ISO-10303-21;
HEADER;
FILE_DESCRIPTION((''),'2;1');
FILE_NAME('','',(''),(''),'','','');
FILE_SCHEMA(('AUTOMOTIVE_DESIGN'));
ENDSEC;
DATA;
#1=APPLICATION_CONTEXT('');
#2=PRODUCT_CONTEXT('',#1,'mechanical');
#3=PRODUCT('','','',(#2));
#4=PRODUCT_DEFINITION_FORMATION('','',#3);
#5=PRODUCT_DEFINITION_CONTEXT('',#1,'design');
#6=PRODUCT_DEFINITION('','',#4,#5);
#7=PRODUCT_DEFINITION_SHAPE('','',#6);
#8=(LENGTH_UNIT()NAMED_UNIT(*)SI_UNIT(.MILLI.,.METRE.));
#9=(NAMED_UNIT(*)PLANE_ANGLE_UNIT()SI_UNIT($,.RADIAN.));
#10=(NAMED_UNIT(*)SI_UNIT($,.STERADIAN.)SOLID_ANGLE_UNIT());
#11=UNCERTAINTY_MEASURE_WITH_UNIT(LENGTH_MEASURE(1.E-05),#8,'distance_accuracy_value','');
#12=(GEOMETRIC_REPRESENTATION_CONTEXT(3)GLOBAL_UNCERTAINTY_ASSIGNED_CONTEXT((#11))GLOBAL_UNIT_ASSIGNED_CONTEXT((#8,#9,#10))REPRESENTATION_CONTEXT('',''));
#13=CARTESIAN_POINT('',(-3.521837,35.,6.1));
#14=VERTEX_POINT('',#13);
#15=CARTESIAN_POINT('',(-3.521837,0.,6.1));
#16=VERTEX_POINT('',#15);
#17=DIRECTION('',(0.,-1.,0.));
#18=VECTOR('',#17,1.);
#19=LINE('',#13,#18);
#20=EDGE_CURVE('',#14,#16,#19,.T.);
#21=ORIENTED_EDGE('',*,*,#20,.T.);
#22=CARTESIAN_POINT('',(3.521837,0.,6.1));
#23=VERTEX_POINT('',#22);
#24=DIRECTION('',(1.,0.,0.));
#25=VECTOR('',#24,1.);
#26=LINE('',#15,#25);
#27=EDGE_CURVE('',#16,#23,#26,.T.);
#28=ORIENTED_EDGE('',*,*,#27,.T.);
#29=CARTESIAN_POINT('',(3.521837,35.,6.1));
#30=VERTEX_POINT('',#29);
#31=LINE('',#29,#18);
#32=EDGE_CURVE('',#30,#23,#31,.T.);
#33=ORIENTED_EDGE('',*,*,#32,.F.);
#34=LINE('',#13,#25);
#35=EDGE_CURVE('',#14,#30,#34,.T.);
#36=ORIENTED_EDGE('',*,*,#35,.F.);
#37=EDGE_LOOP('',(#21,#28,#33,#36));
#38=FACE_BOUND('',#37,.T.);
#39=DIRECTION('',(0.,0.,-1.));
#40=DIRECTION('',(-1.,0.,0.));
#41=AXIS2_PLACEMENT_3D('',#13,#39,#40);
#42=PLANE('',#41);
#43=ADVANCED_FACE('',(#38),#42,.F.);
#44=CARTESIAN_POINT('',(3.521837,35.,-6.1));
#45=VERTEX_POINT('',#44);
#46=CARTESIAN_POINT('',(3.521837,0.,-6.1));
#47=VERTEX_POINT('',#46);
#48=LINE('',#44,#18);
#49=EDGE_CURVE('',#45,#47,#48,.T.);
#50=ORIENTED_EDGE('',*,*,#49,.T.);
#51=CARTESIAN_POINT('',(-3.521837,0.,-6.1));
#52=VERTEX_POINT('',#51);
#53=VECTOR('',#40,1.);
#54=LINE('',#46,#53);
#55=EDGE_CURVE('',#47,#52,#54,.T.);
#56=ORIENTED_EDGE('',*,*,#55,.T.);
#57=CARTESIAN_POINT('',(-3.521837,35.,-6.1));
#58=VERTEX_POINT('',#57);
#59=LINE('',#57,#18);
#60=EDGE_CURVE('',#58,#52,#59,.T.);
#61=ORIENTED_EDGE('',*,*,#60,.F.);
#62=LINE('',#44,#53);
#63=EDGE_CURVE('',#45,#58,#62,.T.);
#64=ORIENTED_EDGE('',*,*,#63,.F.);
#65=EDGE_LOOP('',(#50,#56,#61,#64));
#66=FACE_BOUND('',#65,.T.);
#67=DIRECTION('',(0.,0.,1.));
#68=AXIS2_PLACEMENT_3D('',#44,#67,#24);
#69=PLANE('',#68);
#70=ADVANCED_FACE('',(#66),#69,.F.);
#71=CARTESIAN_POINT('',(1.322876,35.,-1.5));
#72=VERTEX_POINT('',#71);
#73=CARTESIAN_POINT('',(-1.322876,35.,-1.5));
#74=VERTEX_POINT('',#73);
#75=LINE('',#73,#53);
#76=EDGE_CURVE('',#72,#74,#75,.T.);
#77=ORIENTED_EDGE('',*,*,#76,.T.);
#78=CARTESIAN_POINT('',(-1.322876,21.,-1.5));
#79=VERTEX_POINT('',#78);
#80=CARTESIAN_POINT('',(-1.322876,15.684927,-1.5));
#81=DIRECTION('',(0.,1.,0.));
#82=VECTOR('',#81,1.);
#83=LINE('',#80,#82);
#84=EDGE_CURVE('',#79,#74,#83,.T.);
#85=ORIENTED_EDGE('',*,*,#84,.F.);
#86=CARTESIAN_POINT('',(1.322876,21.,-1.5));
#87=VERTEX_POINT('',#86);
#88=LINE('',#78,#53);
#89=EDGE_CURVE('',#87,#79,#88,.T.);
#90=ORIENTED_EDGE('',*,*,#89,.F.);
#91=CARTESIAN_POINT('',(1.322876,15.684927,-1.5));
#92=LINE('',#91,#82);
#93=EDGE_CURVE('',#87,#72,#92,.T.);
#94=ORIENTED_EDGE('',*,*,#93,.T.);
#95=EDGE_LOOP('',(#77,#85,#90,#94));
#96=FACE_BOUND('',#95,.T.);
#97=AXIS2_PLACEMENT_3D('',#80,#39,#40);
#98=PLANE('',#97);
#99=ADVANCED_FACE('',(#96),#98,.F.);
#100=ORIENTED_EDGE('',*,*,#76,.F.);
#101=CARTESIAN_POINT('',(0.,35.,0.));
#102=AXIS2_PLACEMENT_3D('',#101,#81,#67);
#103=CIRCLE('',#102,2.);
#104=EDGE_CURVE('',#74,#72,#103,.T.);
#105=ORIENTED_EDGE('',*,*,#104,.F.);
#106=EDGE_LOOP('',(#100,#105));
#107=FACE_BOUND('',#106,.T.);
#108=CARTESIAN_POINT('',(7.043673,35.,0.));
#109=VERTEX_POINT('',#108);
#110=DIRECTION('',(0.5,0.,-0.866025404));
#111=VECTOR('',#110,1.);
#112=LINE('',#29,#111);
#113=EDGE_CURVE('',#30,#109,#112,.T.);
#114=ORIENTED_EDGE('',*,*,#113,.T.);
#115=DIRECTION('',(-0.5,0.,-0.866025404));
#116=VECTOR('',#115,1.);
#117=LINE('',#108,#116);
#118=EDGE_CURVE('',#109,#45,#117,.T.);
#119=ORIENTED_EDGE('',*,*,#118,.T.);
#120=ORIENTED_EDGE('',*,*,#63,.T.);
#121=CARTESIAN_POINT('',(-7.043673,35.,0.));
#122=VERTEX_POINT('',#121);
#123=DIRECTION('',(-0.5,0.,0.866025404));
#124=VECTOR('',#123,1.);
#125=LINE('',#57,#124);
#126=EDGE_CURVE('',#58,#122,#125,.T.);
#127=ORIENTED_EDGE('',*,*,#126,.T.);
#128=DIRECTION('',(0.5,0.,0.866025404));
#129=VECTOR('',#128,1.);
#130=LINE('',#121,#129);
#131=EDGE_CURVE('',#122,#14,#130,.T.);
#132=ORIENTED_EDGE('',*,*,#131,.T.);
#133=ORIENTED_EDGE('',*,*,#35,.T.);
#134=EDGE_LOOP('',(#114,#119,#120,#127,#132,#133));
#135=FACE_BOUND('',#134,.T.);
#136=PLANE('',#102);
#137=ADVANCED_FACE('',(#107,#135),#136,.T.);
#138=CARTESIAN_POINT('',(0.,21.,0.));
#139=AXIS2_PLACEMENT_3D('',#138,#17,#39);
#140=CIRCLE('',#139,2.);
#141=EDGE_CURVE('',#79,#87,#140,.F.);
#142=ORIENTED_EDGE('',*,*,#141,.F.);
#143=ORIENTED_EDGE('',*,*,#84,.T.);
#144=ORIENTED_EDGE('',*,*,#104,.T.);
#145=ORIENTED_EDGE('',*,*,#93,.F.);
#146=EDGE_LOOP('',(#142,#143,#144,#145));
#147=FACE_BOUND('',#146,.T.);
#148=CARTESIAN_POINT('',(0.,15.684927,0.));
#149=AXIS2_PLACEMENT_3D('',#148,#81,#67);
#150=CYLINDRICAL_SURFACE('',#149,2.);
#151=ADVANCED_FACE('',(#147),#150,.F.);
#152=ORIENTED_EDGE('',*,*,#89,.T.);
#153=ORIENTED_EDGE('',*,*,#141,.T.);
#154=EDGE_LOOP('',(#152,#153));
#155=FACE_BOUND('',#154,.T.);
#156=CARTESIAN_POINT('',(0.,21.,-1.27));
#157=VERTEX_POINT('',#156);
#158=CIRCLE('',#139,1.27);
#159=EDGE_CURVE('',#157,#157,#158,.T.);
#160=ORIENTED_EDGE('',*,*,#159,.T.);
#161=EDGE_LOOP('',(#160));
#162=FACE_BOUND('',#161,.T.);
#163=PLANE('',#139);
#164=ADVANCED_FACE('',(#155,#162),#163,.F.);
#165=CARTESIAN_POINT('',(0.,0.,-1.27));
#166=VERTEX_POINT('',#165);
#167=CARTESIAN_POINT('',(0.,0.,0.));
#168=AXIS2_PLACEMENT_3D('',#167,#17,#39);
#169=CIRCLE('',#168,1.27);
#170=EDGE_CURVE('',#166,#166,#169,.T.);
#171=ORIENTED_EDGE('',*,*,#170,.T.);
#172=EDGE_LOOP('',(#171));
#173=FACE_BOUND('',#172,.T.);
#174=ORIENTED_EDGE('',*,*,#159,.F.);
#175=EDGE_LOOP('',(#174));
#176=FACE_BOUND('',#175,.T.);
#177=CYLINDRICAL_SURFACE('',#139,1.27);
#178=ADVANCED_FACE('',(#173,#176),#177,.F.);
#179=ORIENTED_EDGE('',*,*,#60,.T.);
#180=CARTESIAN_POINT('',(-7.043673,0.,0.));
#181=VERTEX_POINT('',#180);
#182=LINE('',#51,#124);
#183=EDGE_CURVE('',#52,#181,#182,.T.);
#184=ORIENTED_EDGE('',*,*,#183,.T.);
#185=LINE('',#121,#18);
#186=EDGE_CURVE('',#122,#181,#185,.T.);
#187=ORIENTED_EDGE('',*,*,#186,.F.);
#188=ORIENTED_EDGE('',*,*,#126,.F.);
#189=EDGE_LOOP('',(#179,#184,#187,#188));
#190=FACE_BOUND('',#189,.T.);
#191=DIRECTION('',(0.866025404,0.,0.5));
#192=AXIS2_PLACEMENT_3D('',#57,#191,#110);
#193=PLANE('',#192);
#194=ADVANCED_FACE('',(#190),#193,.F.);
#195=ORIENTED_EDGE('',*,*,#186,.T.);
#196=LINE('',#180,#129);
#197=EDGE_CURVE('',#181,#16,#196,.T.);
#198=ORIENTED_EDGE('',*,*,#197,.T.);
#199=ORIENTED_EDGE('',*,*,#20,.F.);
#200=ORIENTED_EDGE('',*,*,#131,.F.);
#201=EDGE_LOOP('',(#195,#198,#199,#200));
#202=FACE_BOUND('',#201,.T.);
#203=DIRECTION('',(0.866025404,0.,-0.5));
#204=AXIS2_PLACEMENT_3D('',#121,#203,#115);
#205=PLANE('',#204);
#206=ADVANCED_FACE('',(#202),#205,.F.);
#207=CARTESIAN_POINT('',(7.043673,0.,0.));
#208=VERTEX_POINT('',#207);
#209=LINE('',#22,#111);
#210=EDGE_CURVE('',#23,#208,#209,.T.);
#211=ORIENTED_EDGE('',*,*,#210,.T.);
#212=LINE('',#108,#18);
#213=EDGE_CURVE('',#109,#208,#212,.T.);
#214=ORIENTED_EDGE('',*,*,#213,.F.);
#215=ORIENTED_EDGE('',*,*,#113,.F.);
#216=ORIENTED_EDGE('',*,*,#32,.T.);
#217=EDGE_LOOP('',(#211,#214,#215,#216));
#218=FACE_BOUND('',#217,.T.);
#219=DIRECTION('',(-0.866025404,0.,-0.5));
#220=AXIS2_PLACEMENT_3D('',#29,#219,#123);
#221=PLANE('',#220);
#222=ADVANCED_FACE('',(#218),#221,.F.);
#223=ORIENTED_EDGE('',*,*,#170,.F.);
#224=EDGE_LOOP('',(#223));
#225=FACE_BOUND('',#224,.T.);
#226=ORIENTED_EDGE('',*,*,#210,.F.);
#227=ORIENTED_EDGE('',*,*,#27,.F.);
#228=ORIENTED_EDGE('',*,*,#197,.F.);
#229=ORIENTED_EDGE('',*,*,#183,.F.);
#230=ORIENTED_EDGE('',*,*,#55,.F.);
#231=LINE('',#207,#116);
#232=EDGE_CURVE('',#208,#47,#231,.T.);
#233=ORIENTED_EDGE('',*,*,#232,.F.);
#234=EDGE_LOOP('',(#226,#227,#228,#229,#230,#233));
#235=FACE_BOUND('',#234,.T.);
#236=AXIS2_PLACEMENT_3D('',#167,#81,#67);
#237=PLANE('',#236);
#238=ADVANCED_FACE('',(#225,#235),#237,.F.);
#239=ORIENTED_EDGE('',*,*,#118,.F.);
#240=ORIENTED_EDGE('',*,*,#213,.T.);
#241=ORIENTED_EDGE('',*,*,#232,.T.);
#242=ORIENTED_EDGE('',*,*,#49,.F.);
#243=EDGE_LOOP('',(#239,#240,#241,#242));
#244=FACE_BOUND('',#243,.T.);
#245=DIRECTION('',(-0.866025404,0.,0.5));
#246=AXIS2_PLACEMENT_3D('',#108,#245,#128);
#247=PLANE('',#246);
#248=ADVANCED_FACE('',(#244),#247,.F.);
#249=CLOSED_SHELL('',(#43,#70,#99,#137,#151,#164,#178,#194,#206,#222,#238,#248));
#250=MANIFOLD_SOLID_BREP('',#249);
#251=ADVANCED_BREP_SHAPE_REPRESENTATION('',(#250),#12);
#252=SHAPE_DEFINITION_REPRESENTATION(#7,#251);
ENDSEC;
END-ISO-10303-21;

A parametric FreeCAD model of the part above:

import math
import FreeCAD as App
import Part
import Sketcher
from FreeCAD import Vector
Q = App.Units.Quantity

doc = App.newDocument("Part")
body = doc.addObject("PartDesign::Body", "Body")

# Sketch on XZ plane
sketch1 = body.newObject("Sketcher::SketchObject", "Sketch")
sketch1.AttachmentSupport = (doc.getObject("XZ_Plane"), [""])
sketch1.MapMode = "FlatFace"
sketch1.addGeometry([
    Part.LineSegment(Vector(3.521837, -6.1, 0), Vector(-3.521837, -6.1, 0)),  # 0
    Part.LineSegment(Vector(-3.521837, -6.1, 0), Vector(-7.043673, 0, 0)),  # 1
    Part.LineSegment(Vector(-7.043673, 0, 0), Vector(-3.521837, 6.1, 0)),  # 2
    Part.LineSegment(Vector(-3.521837, 6.1, 0), Vector(3.521837, 6.1, 0)),  # 3
    Part.LineSegment(Vector(3.521837, 6.1, 0), Vector(7.043673, 0, 0)),  # 4
    Part.LineSegment(Vector(7.043673, 0, 0), Vector(3.521837, -6.1, 0)),  # 5
], False)
sketch1.addConstraint([
    Sketcher.Constraint("Coincident", 0, 2, 1, 1),
    Sketcher.Constraint("Coincident", 1, 2, 2, 1),
    Sketcher.Constraint("Coincident", 2, 2, 3, 1),
    Sketcher.Constraint("Coincident", 3, 2, 4, 1),
    Sketcher.Constraint("Coincident", 4, 2, 5, 1),
    Sketcher.Constraint("Coincident", 5, 2, 0, 1),
    Sketcher.Constraint("Horizontal", 0),
    Sketcher.Constraint("Horizontal", 3),
    Sketcher.Constraint("Symmetric", 0, 2, 3, 2, -1, 1),
    Sketcher.Constraint("Symmetric", 1, 2, 4, 2, -1, 1),
    Sketcher.Constraint("PointOnObject", 1, 2, -1),
    Sketcher.Constraint("Parallel", 2, 5),
    Sketcher.Constraint("Vertical", 0, 2, 2, 2),
    Sketcher.Constraint("Angle", 1, Q("120 deg")),
    Sketcher.Constraint("DistanceY", 0, 2, -1, 1, 6.1),
    Sketcher.Constraint("DistanceX", 0, 2, 0, 1, 7.043673),
])
pad1 = body.newObject("PartDesign::Pad", "Pad")
pad1.Profile = sketch1
pad1.Length = 35
pad1.Reversed = True

# Sketch on XZ plane
sketch2 = body.newObject("Sketcher::SketchObject", "Sketch001")
sketch2.AttachmentSupport = (doc.getObject("XZ_Plane"), [""])
sketch2.MapMode = "FlatFace"
sketch2.addGeometry(Part.Circle(Vector(0, 0, 0), Vector(0, 0, 1), 1.27), False)
sketch2.addConstraint([
    Sketcher.Constraint("Coincident", 0, 3, -1, 1),
    Sketcher.Constraint("Diameter", 0, 2.54),
])
pocket1 = body.newObject("PartDesign::Pocket", "Pocket")
pocket1.Profile = sketch2
pocket1.Length = 21

# Sketch on XZ plane
sketch3 = body.newObject("Sketcher::SketchObject", "Sketch002")
sketch3.AttachmentSupport = (doc.getObject("XZ_Plane"), [""])
sketch3.MapMode = "FlatFace"
sketch3.AttachmentOffset = App.Placement(Vector(0, 0, -35), App.Rotation())
sketch3.addGeometry([
    Part.LineSegment(Vector(1.322876, -1.5, 0), Vector(-1.322876, -1.5, 0)),
    Part.ArcOfCircle(Part.Circle(Vector(0, 0, 0), Vector(0, 0, 1), 2), math.radians(-48.590378), math.radians(228.590378)),
], False)
sketch3.addConstraint([
    Sketcher.Constraint("Coincident", 0, 1, 1, 1),
    Sketcher.Constraint("Coincident", 1, 2, 0, 2),
    Sketcher.Constraint("Horizontal", 0),
    Sketcher.Constraint("Coincident", 1, 3, -1, 1),
    Sketcher.Constraint("Radius", 1, 2.0),
    Sketcher.Constraint("DistanceY", 0, 1, -1, 1, 1.5),
])
pocket2 = body.newObject("PartDesign::Pocket", "Pocket001")
pocket2.Profile = sketch3
pocket2.Length = 14
pocket2.Reversed = True

doc.recompute()
